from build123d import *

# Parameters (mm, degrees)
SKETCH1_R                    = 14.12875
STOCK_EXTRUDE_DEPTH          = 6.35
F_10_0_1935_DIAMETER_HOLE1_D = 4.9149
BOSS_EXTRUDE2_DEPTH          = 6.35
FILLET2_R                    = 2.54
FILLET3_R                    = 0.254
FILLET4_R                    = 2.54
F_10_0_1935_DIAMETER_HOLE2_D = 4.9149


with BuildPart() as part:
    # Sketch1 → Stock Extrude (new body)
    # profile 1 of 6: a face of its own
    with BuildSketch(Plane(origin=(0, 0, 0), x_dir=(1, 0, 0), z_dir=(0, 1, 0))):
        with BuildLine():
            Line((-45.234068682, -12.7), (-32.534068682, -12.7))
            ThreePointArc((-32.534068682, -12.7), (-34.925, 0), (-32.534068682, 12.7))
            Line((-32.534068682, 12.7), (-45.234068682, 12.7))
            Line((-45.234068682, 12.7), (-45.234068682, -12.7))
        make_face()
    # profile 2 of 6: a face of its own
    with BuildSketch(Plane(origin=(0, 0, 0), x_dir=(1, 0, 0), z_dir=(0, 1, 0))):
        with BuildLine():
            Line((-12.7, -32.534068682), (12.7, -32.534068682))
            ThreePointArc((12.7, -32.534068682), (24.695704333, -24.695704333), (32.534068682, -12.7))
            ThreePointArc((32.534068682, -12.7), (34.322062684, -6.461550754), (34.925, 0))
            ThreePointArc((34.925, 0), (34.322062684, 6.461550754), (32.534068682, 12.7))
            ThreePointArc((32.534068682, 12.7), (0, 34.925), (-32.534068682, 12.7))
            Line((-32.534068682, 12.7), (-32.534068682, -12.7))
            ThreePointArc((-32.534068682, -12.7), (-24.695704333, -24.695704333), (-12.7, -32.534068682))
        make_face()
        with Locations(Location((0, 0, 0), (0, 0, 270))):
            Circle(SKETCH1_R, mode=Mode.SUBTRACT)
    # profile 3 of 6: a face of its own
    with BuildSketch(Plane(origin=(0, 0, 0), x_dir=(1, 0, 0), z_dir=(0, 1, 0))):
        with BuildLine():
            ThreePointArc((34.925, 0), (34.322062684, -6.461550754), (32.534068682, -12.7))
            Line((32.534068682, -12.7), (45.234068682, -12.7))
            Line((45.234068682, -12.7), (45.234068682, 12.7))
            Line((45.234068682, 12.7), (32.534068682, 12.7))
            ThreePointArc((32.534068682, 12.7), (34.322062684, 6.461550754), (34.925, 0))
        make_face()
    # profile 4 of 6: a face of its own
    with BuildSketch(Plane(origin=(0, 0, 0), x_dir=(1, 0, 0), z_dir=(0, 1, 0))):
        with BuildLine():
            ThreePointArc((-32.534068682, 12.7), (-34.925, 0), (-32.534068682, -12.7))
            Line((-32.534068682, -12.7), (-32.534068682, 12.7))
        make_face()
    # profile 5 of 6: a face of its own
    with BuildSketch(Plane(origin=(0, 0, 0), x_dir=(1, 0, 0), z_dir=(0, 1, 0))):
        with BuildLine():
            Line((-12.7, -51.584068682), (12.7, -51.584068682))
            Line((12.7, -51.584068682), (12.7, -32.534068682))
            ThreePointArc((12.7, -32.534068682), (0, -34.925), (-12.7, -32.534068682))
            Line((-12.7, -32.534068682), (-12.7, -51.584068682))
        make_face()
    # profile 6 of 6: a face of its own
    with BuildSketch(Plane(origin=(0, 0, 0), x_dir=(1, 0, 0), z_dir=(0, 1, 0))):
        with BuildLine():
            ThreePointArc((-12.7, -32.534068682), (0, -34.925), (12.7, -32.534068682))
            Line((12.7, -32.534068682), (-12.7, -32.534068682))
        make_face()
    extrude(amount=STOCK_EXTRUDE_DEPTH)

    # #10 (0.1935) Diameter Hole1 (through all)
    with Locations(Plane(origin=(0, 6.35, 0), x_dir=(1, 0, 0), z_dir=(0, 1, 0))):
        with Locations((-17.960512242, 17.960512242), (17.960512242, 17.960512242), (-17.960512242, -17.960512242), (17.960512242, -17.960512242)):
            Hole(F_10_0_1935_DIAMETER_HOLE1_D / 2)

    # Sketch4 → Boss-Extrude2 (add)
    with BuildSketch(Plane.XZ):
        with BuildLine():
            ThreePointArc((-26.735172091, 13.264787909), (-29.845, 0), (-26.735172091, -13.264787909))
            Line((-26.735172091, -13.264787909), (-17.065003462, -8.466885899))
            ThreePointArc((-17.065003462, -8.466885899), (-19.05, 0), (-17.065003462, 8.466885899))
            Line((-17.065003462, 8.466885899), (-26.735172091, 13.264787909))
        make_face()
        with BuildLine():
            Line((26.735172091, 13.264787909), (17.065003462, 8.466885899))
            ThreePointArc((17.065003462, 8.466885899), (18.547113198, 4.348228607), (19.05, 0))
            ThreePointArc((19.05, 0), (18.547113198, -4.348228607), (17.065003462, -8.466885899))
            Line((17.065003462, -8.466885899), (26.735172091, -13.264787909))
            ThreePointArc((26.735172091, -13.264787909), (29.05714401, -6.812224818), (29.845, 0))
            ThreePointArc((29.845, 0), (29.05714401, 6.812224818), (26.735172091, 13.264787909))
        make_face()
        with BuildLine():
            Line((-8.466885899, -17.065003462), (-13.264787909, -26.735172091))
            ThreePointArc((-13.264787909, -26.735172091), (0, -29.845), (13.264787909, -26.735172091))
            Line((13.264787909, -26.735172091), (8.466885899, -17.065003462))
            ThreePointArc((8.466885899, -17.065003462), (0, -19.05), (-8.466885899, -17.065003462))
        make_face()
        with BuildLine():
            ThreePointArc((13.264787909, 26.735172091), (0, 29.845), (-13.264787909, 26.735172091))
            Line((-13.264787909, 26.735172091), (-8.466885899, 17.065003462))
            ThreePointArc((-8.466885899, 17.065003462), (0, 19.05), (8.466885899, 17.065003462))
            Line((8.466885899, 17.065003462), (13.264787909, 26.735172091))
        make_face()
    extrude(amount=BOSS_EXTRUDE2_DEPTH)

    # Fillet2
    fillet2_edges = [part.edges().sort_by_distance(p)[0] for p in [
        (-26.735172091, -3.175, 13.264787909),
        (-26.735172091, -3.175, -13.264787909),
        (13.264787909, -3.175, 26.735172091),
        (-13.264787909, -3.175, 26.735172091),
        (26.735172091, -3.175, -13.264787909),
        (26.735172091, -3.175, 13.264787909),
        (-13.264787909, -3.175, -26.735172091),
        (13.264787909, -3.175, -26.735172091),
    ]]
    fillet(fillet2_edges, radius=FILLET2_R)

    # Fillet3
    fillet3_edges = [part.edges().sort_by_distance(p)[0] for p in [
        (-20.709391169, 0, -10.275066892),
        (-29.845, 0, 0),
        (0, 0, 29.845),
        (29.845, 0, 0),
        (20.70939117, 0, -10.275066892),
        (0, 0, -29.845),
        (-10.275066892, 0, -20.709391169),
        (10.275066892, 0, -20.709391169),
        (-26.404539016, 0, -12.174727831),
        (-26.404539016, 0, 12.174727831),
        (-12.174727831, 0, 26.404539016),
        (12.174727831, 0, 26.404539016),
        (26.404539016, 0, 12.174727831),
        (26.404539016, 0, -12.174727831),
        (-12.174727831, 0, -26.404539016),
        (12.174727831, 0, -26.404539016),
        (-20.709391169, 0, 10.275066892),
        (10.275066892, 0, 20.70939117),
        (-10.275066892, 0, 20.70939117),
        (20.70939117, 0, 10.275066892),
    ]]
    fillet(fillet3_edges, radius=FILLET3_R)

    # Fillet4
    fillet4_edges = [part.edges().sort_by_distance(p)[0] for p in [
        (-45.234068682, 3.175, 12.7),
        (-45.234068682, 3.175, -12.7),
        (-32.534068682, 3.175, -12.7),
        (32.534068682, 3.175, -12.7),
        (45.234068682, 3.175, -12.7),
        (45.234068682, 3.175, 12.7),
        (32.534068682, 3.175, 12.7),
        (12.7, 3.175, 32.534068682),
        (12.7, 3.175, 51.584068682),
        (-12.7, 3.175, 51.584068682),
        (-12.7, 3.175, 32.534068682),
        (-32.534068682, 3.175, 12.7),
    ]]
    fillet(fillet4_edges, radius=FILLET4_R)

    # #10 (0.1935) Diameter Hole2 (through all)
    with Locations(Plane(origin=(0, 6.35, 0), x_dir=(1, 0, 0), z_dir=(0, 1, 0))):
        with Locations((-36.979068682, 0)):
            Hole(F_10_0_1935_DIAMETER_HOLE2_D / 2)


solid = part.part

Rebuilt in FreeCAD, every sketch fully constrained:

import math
import FreeCAD as App
import Part
import Sketcher

V = App.Vector
Q = App.Units.Quantity


def edges_at(feature, points):
    """Names of the edges that pass closest to the given points."""
    edges = feature.Shape.Edges
    near = lambda p: min(range(len(edges)), key=lambda i: edges[i].distToShape(Part.Vertex(*p))[0])
    return sorted({f"Edge{near(p) + 1}" for p in points})

doc = App.newDocument("Part")
body = doc.addObject("PartDesign::Body", "Body")

sketch1 = doc.addObject("Sketcher::SketchObject", "Sketch")
body.addObject(sketch1)
sketch1.AttachmentSupport = (doc.XZ_Plane, [""])
sketch1.MapMode = "FlatFace"
sketch1.addGeometry([
    Part.LineSegment(V(-45, 13, 0), V(-33, 13, 0)),
    Part.ArcOfCircle(Part.Circle(V(0, 0, 0), V(0, 0, 1), 35), math.radians(111), math.radians(159)),
    Part.LineSegment(V(-13, 33, 0), V(-13, 52, 0)),
    Part.LineSegment(V(-13, 52, 0), V(13, 52, 0)),
    Part.LineSegment(V(13, 52, 0), V(13, 33, 0)),
    Part.ArcOfCircle(Part.Circle(V(0, 0, 0), V(0, 0, 1), 35), math.radians(21), math.radians(69)),
    Part.LineSegment(V(33, 13, 0), V(45, 13, 0)),
    Part.LineSegment(V(45, 13, 0), V(45, -13, 0)),
    Part.LineSegment(V(45, -13, 0), V(33, -13, 0)),
    Part.ArcOfCircle(Part.Circle(V(0, 0, 0), V(0, 0, 1), 35), math.radians(-159), math.radians(-21)),
    Part.LineSegment(V(-33, -13, 0), V(-45, -13, 0)),
    Part.LineSegment(V(-45, -13, 0), V(-45, 13, 0)),
    Part.Circle(V(0, 0, 0), V(0, 0, 1), 14),
], False)
sketch1.addConstraint([
    Sketcher.Constraint("Coincident", 0, 2, 1, 2),
    Sketcher.Constraint("Coincident", 1, 1, 2, 1),
    Sketcher.Constraint("Coincident", 2, 2, 3, 1),
    Sketcher.Constraint("Coincident", 3, 2, 4, 1),
    Sketcher.Constraint("Coincident", 4, 2, 5, 2),
    Sketcher.Constraint("Coincident", 5, 1, 6, 1),
    Sketcher.Constraint("Coincident", 6, 2, 7, 1),
    Sketcher.Constraint("Coincident", 7, 2, 8, 1),
    Sketcher.Constraint("Coincident", 8, 2, 9, 2),
    Sketcher.Constraint("Coincident", 9, 1, 10, 1),
    Sketcher.Constraint("Coincident", 10, 2, 11, 1),
    Sketcher.Constraint("Coincident", 11, 2, 0, 1),
    Sketcher.Constraint("Horizontal", 0),
    Sketcher.Constraint("Vertical", 2),
    Sketcher.Constraint("Horizontal", 3),
    Sketcher.Constraint("Vertical", 4),
    Sketcher.Constraint("Horizontal", 6),
    Sketcher.Constraint("Vertical", 7),
    Sketcher.Constraint("Horizontal", 8),
    Sketcher.Constraint("Horizontal", 10),
    Sketcher.Constraint("Vertical", 11),
    Sketcher.Constraint("Coincident", 1, 3, -1, 1),
    Sketcher.Constraint("Coincident", 5, 3, -1, 1),
    Sketcher.Constraint("Coincident", 9, 3, -1, 1),
    Sketcher.Constraint("Coincident", 12, 3, -1, 1),
    Sketcher.Constraint("Equal", 1, 5),
    Sketcher.Constraint("Equal", 5, 9),
    Sketcher.Constraint("Symmetric", 6, 2, 10, 2, -1, 1),
    Sketcher.Constraint("Horizontal", 1, 1, 4, 2),
    Sketcher.Constraint("Horizontal", 0, 2, 5, 1),
    Sketcher.Constraint("Horizontal", 8, 2, 9, 1),
    Sketcher.Constraint("Equal", 3, 7),
    Sketcher.Constraint("DistanceX", 3, 1, 3, 2, Q("1 in")),
    Sketcher.Constraint("DistanceX", 0, 1, 0, 2, Q("0.5 in")),
    Sketcher.Constraint("Radius", 1, Q("1.375 in")),
    Sketcher.Constraint("Diameter", 12, Q("1.1125 in")),
    Sketcher.Constraint("DistanceY", 2, 1, 2, 2, Q("0.75 in")),
])
pad1 = doc.addObject("PartDesign::Pad", "Pad")
body.addObject(pad1)
pad1.Profile = sketch1
pad1.Length = Q("0.25 in")
pad1.Reversed = True

sketch2 = doc.addObject("Sketcher::SketchObject", "Sketch001")
body.addObject(sketch2)
sketch2.AttachmentSupport = (doc.XZ_Plane, [""])
sketch2.MapMode = "FlatFace"
sketch2.AttachmentOffset = App.Placement(V(0, 0, -0.25 * 25.4), App.Rotation())
sketch2.addGeometry([
    Part.Circle(V(-18, -18, 0), V(0, 0, 1), 2.5),
    Part.Circle(V(18, -18, 0), V(0, 0, 1), 2.5),
    Part.Circle(V(-18, 18, 0), V(0, 0, 1), 2.5),
    Part.Circle(V(18, 18, 0), V(0, 0, 1), 2.5),
], False)
sketch2.addConstraint([
    Sketcher.Constraint("Equal", 0, 1),
    Sketcher.Constraint("Equal", 1, 2),
    Sketcher.Constraint("Equal", 2, 3),
    Sketcher.Constraint("Symmetric", 1, 3, 2, 3, -1, 1),
    Sketcher.Constraint("Symmetric", 0, 3, 3, 3, -1, 1),
    Sketcher.Constraint("Symmetric", 0, 3, 1, 3, -2),
    Sketcher.Constraint("Diameter", 0, Q("0.1935 in")),
    Sketcher.Constraint("DistanceX", 0, 3, -1, 1, Q("17.960512 mm")),
    Sketcher.Constraint("DistanceY", 0, 3, -1, 1, Q("17.960512 mm")),
])
doc.recompute()
hole = doc.addObject("PartDesign::Hole", "Hole")
body.addObject(hole)
hole.Profile = sketch2
hole.ThreadType = "None"
hole.Diameter = Q("0.1935 in")
hole.DepthType = "ThroughAll"
hole.Reversed = True

sketch3 = doc.addObject("Sketcher::SketchObject", "Sketch002")
body.addObject(sketch3)
sketch3.AttachmentSupport = (doc.XZ_Plane, [""])
sketch3.MapMode = "FlatFace"
sketch3.addGeometry([
    Part.ArcOfCircle(Part.Circle(V(0, 0, 0), V(0, 0, 1), 30), math.radians(154), math.radians(206)),
    Part.LineSegment(V(-27, -13, 0), V(-17, -8, 0)),
    Part.ArcOfCircle(Part.Circle(V(0, 0, 0), V(0, 0, 1), 19), math.radians(154), math.radians(206)),
    Part.LineSegment(V(-17, 8, 0), V(-27, 13, 0)),
    Part.LineSegment(V(27, 13, 0), V(17, 8, 0)),
    Part.ArcOfCircle(Part.Circle(V(0, 0, 0), V(0, 0, 1), 19), math.radians(0), math.radians(26)),
    Part.ArcOfCircle(Part.Circle(V(0, 0, 0), V(0, 0, 1), 19), math.radians(-26), math.radians(0)),
    Part.LineSegment(V(17, -8, 0), V(27, -13, 0)),
    Part.ArcOfCircle(Part.Circle(V(0, 0, 0), V(0, 0, 1), 30), math.radians(-26), math.radians(0)),
    Part.ArcOfCircle(Part.Circle(V(0, 0, 0), V(0, 0, 1), 30), math.radians(0), math.radians(26)),
    Part.LineSegment(V(-8, -17, 0), V(-13, -27, 0)),
    Part.ArcOfCircle(Part.Circle(V(0, 0, 0), V(0, 0, 1), 30), math.radians(-116), math.radians(-64)),
    Part.LineSegment(V(13, -27, 0), V(8, -17, 0)),
    Part.ArcOfCircle(Part.Circle(V(0, 0, 0), V(0, 0, 1), 19), math.radians(-116), math.radians(-64)),
    Part.ArcOfCircle(Part.Circle(V(0, 0, 0), V(0, 0, 1), 30), math.radians(64), math.radians(116)),
    Part.LineSegment(V(-13, 27, 0), V(-8, 17, 0)),
    Part.ArcOfCircle(Part.Circle(V(0, 0, 0), V(0, 0, 1), 19), math.radians(64), math.radians(116)),
    Part.LineSegment(V(8, 17, 0), V(13, 27, 0)),
], False)
sketch3.addConstraint([
    Sketcher.Constraint("Coincident", 0, 2, 1, 1),
    Sketcher.Constraint("Coincident", 1, 2, 2, 2),
    Sketcher.Constraint("Coincident", 2, 1, 3, 1),
    Sketcher.Constraint("Coincident", 3, 2, 0, 1),
    Sketcher.Constraint("Coincident", 4, 2, 5, 2),
    Sketcher.Constraint("Tangent", 5, 1, 6, 2),
    Sketcher.Constraint("Coincident", 6, 1, 7, 1),
    Sketcher.Constraint("Coincident", 7, 2, 8, 1),
    Sketcher.Constraint("Tangent", 8, 2, 9, 1),
    Sketcher.Constraint("Coincident", 9, 2, 4, 1),
    Sketcher.Constraint("Coincident", 10, 2, 11, 1),
    Sketcher.Constraint("Coincident", 11, 2, 12, 1),
    Sketcher.Constraint("Coincident", 12, 2, 13, 2),
    Sketcher.Constraint("Coincident", 13, 1, 10, 1),
    Sketcher.Constraint("Coincident", 14, 2, 15, 1),
    Sketcher.Constraint("Coincident", 15, 2, 16, 2),
    Sketcher.Constraint("Coincident", 16, 1, 17, 1),
    Sketcher.Constraint("Coincident", 17, 2, 14, 1),
    Sketcher.Constraint("Coincident", 0, 3, -1, 1),
    Sketcher.Constraint("Coincident", 2, 3, -1, 1),
    Sketcher.Constraint("Coincident", 5, 3, -1, 1),
    Sketcher.Constraint("Coincident", 8, 3, -1, 1),
    Sketcher.Constraint("Coincident", 11, 3, -1, 1),
    Sketcher.Constraint("Coincident", 13, 3, -1, 1),
    Sketcher.Constraint("Coincident", 14, 3, -1, 1),
    Sketcher.Constraint("Coincident", 16, 3, -1, 1),
    Sketcher.Constraint("Equal", 2, 5),
    Sketcher.Constraint("Equal", 5, 6),
    Sketcher.Constraint("Equal", 0, 8),
    Sketcher.Constraint("Equal", 8, 9),
    Sketcher.Constraint("Equal", 9, 11),
    Sketcher.Constraint("Equal", 6, 13),
    Sketcher.Constraint("Equal", 11, 14),
    Sketcher.Constraint("Equal", 13, 16),
    Sketcher.Constraint("PointOnObject", 5, 1, -1),
    Sketcher.Constraint("PointOnObject", 8, 2, -1),
    Sketcher.Constraint("Parallel", 1, 4),
    Sketcher.Constraint("Parallel", 3, 7),
    Sketcher.Constraint("Perpendicular", 7, 10),
    Sketcher.Constraint("Perpendicular", 4, 12),
    Sketcher.Constraint("Parallel", 12, 15),
    Sketcher.Constraint("Parallel", 10, 17),
    Sketcher.Constraint("Horizontal", 2, 1, 4, 2),
    Sketcher.Constraint("Horizontal", 1, 2, 6, 1),
    Sketcher.Constraint("Horizontal", 0, 2, 7, 2),
    Sketcher.Constraint("Horizontal", 10, 2, 11, 2),
    Sketcher.Constraint("Horizontal", 15, 2, 16, 1),
    Sketcher.Constraint("Vertical", 1, 2, 2, 1),
    Sketcher.Constraint("Vertical", 10, 2, 14, 2),
    Sketcher.Constraint("Radius", 2, Q("0.75 in")),
    Sketcher.Constraint("Radius", 0, Q("1.175 in")),
    Sketcher.Constraint("DistanceX", 0, 2, 1, 2, Q("9.670169 mm")),
    Sketcher.Constraint("DistanceY", 1, 2, 2, 1, Q("16.933772 mm")),
    Sketcher.Constraint("DistanceX", 13, 1, 12, 2, Q("16.933772 mm")),
])
pad2 = doc.addObject("PartDesign::Pad", "Pad001")
body.addObject(pad2)
pad2.Profile = sketch3
pad2.Length = Q("0.25 in")
doc.recompute()

fillet = doc.addObject("PartDesign::Fillet", "Fillet")
body.addObject(fillet)
fillet.Base = (pad2, edges_at(pad2, [
    (-26.735, -3.175, 13.265),
    (-26.735, -3.175, -13.265),
    (13.265, -3.175, 26.735),
    (-13.265, -3.175, 26.735),
    (26.735, -3.175, -13.265),
    (26.735, -3.175, 13.265),
    (-13.265, -3.175, -26.735),
    (13.265, -3.175, -26.735),
]))
fillet.Radius = Q("0.1 in")
doc.recompute()

fillet2 = doc.addObject("PartDesign::Fillet", "Fillet001")
body.addObject(fillet2)
fillet2.Base = (fillet, edges_at(fillet, [
    (-20.709, 0, -10.275),
    (-29.845, 0, 0),
    (0, 0, 29.845),
    (29.343, 0, 5.452),
    (20.709, 0, -10.275),
    (0, 0, -29.845),
    (-10.275, 0, -20.709),
    (10.275, 0, -20.709),
    (-26.405, 0, -12.175),
    (-26.405, 0, 12.175),
    (-12.175, 0, 26.405),
    (12.175, 0, 26.405),
    (26.405, 0, 12.175),
    (26.405, 0, -12.175),
    (-12.175, 0, -26.405),
    (12.175, 0, -26.405),
    (-20.709, 0, 10.275),
    (10.275, 0, 20.709),
    (-10.275, 0, 20.709),
    (20.709, 0, 10.275),
]))
fillet2.Radius = Q("0.01 in")
doc.recompute()

fillet3 = doc.addObject("PartDesign::Fillet", "Fillet002")
body.addObject(fillet3)
fillet3.Base = (fillet2, edges_at(fillet2, [
    (-45.234, 3.175, 12.7),
    (-45.234, 3.175, -12.7),
    (-32.534, 3.175, -12.7),
    (32.534, 3.175, -12.7),
    (45.234, 3.175, -12.7),
    (45.234, 3.175, 12.7),
    (32.534, 3.175, 12.7),
    (12.7, 3.175, 32.534),
    (12.7, 3.175, 51.584),
    (-12.7, 3.175, 51.584),
    (-12.7, 3.175, 32.534),
    (-32.534, 3.175, 12.7),
]))
fillet3.Radius = Q("0.1 in")

sketch4 = doc.addObject("Sketcher::SketchObject", "Sketch003")
body.addObject(sketch4)
sketch4.AttachmentSupport = (doc.XZ_Plane, [""])
sketch4.MapMode = "FlatFace"
sketch4.AttachmentOffset = App.Placement(V(0, 0, -0.25 * 25.4), App.Rotation())
sketch4.addGeometry(Part.Circle(V(-37, 0, 0), V(0, 0, 1), 2.5), False)
sketch4.addConstraint([
    Sketcher.Constraint("PointOnObject", 0, 3, -1),
    Sketcher.Constraint("Diameter", 0, Q("0.1935 in")),
    Sketcher.Constraint("DistanceX", 0, 3, -1, 1, Q("36.979069 mm")),
])
doc.recompute()
hole2 = doc.addObject("PartDesign::Hole", "Hole001")
body.addObject(hole2)
hole2.Profile = sketch4
hole2.ThreadType = "None"
hole2.Diameter = Q("0.1935 in")
hole2.DepthType = "ThroughAll"
hole2.Reversed = True

doc.recompute()
